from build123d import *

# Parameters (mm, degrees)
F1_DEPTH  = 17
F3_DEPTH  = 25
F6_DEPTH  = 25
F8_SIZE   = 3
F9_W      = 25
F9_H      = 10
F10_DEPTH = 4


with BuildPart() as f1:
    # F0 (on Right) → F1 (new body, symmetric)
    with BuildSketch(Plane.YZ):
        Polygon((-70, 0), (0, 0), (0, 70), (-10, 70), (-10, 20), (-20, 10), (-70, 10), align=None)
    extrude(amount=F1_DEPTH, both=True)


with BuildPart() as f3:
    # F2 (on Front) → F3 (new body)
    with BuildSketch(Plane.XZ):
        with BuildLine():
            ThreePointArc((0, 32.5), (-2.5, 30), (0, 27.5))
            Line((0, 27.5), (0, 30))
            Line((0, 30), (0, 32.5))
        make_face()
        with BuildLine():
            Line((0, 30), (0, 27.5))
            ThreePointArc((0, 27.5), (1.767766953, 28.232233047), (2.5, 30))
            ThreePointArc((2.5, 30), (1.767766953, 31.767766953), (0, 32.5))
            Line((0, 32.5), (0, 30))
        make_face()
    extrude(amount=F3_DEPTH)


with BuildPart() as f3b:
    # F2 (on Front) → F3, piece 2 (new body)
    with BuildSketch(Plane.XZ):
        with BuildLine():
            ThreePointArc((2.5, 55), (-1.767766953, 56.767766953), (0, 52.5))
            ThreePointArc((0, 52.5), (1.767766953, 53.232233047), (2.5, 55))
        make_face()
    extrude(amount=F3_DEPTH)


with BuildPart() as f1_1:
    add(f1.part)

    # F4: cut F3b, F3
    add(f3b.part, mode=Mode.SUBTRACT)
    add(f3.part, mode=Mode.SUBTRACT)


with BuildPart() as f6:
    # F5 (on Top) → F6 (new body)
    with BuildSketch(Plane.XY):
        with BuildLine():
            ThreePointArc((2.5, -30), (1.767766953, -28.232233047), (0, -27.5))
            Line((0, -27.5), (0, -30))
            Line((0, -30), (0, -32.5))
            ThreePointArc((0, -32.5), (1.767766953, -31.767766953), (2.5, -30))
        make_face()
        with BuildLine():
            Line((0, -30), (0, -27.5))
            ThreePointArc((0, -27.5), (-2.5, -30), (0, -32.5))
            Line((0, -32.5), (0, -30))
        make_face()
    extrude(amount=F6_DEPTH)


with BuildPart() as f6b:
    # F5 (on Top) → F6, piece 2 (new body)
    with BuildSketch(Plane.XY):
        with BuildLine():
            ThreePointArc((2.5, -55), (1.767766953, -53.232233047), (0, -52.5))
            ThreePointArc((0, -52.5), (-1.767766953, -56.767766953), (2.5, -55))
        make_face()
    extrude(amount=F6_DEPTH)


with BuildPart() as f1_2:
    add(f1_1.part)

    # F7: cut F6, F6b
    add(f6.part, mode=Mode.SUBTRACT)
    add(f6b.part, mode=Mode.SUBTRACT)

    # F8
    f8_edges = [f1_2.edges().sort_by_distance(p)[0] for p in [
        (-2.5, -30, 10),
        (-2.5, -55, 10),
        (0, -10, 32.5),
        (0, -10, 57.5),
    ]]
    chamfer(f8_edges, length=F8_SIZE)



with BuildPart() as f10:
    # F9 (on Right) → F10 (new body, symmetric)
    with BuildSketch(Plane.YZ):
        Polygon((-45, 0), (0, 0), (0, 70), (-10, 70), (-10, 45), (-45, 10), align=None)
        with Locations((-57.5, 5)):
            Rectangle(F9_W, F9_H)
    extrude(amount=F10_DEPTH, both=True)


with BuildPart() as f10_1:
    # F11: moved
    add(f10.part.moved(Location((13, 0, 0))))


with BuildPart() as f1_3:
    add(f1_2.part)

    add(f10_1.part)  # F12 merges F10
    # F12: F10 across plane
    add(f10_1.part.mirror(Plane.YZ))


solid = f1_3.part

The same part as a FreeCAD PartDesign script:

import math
import FreeCAD as App
import Part
import Sketcher
from FreeCAD import Vector
Q = App.Units.Quantity


def edges_at(feature, points):
    """Names of the edges that pass closest to the given points."""
    edges = feature.Shape.Edges
    near = lambda p: min(range(len(edges)), key=lambda i: edges[i].distToShape(Part.Vertex(*p))[0])
    return sorted({f"Edge{near(p) + 1}" for p in points})


def add_polygon(sketch, points):
    """Adds a closed chain of lines whose ends are joined by coincident constraints."""
    first, n = sketch.GeometryCount, len(points)
    for a, b in zip(points, points[1:] + points[:1]):
        sketch.addGeometry(Part.LineSegment(App.Vector(*a, 0), App.Vector(*b, 0)), False)
    for i in range(n):
        sketch.addConstraint(Sketcher.Constraint("Coincident", first + i, 2, first + (i + 1) % n, 1))

doc = App.newDocument("Part")
body = doc.addObject("PartDesign::Body", "Body")

# Sketch on YZ plane
sketch1 = doc.addObject("Sketcher::SketchObject", "Sketch")
body.addObject(sketch1)
sketch1.AttachmentSupport = (doc.YZ_Plane, [""])
sketch1.MapMode = "FlatFace"
add_polygon(sketch1, [(-70, 0), (0, 0), (0, 70), (-10, 70), (-10, 20), (-20, 10), (-70, 10)])  # lines 0-6
sketch1.addConstraint(Sketcher.Constraint("Horizontal", 0))
sketch1.addConstraint(Sketcher.Constraint("Vertical", 1))
sketch1.addConstraint(Sketcher.Constraint("Horizontal", 2))
sketch1.addConstraint(Sketcher.Constraint("Vertical", 3))
sketch1.addConstraint(Sketcher.Constraint("Horizontal", 5))
sketch1.addConstraint(Sketcher.Constraint("Vertical", 6))
sketch1.addConstraint(Sketcher.Constraint("Coincident", 0, 2, -1, 1))
sketch1.addConstraint(Sketcher.Constraint("Equal", 0, 1))
sketch1.addConstraint(Sketcher.Constraint("Equal", 5, 3))
sketch1.addConstraint(Sketcher.Constraint("Equal", 2, 6))
sketch1.addConstraint(Sketcher.Constraint("DistanceX", 0, 1, 0, 2, Q("70 mm")))
sketch1.addConstraint(Sketcher.Constraint("DistanceX", 2, 2, 2, 1, Q("10 mm")))
sketch1.addConstraint(Sketcher.Constraint("DistanceX", 5, 2, 5, 1, Q("50 mm")))
pad1 = doc.addObject("PartDesign::Pad", "Pad")
body.addObject(pad1)
pad1.Profile = sketch1
pad1.Length = 34
pad1.Midplane = True
body2 = doc.addObject("PartDesign::Body", "Body001")

# Sketch on XZ plane
sketch2 = doc.addObject("Sketcher::SketchObject", "Sketch001")
body2.addObject(sketch2)
sketch2.AttachmentSupport = (doc.getObject("XZ_Plane001"), [""])
sketch2.MapMode = "FlatFace"
sketch2.addGeometry(Part.ArcOfCircle(Part.Circle(Vector(0, 30, 0), Vector(0, 0, 1), 2.5), math.radians(90), math.radians(270)), False)
sketch2.addGeometry(Part.ArcOfCircle(Part.Circle(Vector(0, 30, 0), Vector(0, 0, 1), 2.5), math.radians(-90), math.radians(0)), False)
sketch2.addGeometry(Part.ArcOfCircle(Part.Circle(Vector(0, 30, 0), Vector(0, 0, 1), 2.5), math.radians(0), math.radians(90)), False)
sketch2.addConstraint(Sketcher.Constraint("Tangent", 0, 2, 1, 1))
sketch2.addConstraint(Sketcher.Constraint("Tangent", 1, 2, 2, 1))
sketch2.addConstraint(Sketcher.Constraint("Tangent", 2, 2, 0, 1))
sketch2.addConstraint(Sketcher.Constraint("PointOnObject", 0, 3, -2))
sketch2.addConstraint(Sketcher.Constraint("PointOnObject", 0, 2, -2))
sketch2.addConstraint(Sketcher.Constraint("PointOnObject", 2, 2, -2))
sketch2.addConstraint(Sketcher.Constraint("Horizontal", 2, 3, 1, 2))
sketch2.addConstraint(Sketcher.Constraint("Radius", 0, Q("2.5 mm")))
sketch2.addConstraint(Sketcher.Constraint("DistanceY", -1, 1, 0, 3, Q("30 mm")))
pad2 = doc.addObject("PartDesign::Pad", "Pad001")
body2.addObject(pad2)
pad2.Profile = sketch2
pad2.Length = 25
body3 = doc.addObject("PartDesign::Body", "Body002")

# Sketch on XZ plane
sketch3 = doc.addObject("Sketcher::SketchObject", "Sketch002")
body3.addObject(sketch3)
sketch3.AttachmentSupport = (doc.getObject("XZ_Plane002"), [""])
sketch3.MapMode = "FlatFace"
sketch3.addGeometry(Part.ArcOfCircle(Part.Circle(Vector(0, 55, 0), Vector(0, 0, 1), 2.5), math.radians(0), math.radians(270)), False)
sketch3.addGeometry(Part.ArcOfCircle(Part.Circle(Vector(0, 55, 0), Vector(0, 0, 1), 2.5), math.radians(-90), math.radians(0)), False)
sketch3.addConstraint(Sketcher.Constraint("Tangent", 0, 1, 1, 2))
sketch3.addConstraint(Sketcher.Constraint("Coincident", 1, 1, 0, 2))
sketch3.addConstraint(Sketcher.Constraint("PointOnObject", 0, 3, -2))
sketch3.addConstraint(Sketcher.Constraint("PointOnObject", 1, 1, -2))
sketch3.addConstraint(Sketcher.Constraint("Horizontal", 1, 3, 0, 1))
sketch3.addConstraint(Sketcher.Constraint("Radius", 0, Q("2.5 mm")))
sketch3.addConstraint(Sketcher.Constraint("DistanceY", -1, 1, 0, 3, Q("55 mm")))
pad3 = doc.addObject("PartDesign::Pad", "Pad002")
body3.addObject(pad3)
pad3.Profile = sketch3
pad3.Length = 25
doc.recompute()

boolean = doc.addObject("PartDesign::Boolean", "Boolean")
body.addObject(boolean)
boolean.Type = "Cut"
boolean.addObjects([body3])
doc.recompute()

boolean2 = doc.addObject("PartDesign::Boolean", "Boolean001")
body.addObject(boolean2)
boolean2.Type = "Cut"
boolean2.addObjects([body2])
body4 = doc.addObject("PartDesign::Body", "Body003")

# Sketch on XY plane
sketch4 = doc.addObject("Sketcher::SketchObject", "Sketch003")
body4.addObject(sketch4)
sketch4.AttachmentSupport = (doc.getObject("XY_Plane003"), [""])
sketch4.MapMode = "FlatFace"
sketch4.addGeometry(Part.ArcOfCircle(Part.Circle(Vector(0, -30, 0), Vector(0, 0, 1), 2.5), math.radians(0), math.radians(90)), False)
sketch4.addGeometry(Part.ArcOfCircle(Part.Circle(Vector(0, -30, 0), Vector(0, 0, 1), 2.5), math.radians(90), math.radians(270)), False)
sketch4.addGeometry(Part.ArcOfCircle(Part.Circle(Vector(0, -30, 0), Vector(0, 0, 1), 2.5), math.radians(-90), math.radians(0)), False)
sketch4.addConstraint(Sketcher.Constraint("Tangent", 0, 2, 1, 1))
sketch4.addConstraint(Sketcher.Constraint("Tangent", 1, 2, 2, 1))
sketch4.addConstraint(Sketcher.Constraint("Tangent", 2, 2, 0, 1))
sketch4.addConstraint(Sketcher.Constraint("PointOnObject", 0, 3, -2))
sketch4.addConstraint(Sketcher.Constraint("PointOnObject", 0, 2, -2))
sketch4.addConstraint(Sketcher.Constraint("PointOnObject", 1, 2, -2))
sketch4.addConstraint(Sketcher.Constraint("Horizontal", 1, 3, 2, 2))
sketch4.addConstraint(Sketcher.Constraint("Radius", 0, Q("2.5 mm")))
sketch4.addConstraint(Sketcher.Constraint("DistanceY", 0, 3, -1, 1, Q("30 mm")))
pad4 = doc.addObject("PartDesign::Pad", "Pad003")
body4.addObject(pad4)
pad4.Profile = sketch4
pad4.Length = 25
body5 = doc.addObject("PartDesign::Body", "Body004")

# Sketch on XY plane
sketch5 = doc.addObject("Sketcher::SketchObject", "Sketch004")
body5.addObject(sketch5)
sketch5.AttachmentSupport = (doc.getObject("XY_Plane004"), [""])
sketch5.MapMode = "FlatFace"
sketch5.addGeometry(Part.ArcOfCircle(Part.Circle(Vector(0, -55, 0), Vector(0, 0, 1), 2.5), math.radians(0), math.radians(90)), False)
sketch5.addGeometry(Part.ArcOfCircle(Part.Circle(Vector(0, -55, 0), Vector(0, 0, 1), 2.5), math.radians(90), math.radians(360)), False)
sketch5.addConstraint(Sketcher.Constraint("Tangent", 0, 1, 1, 2))
sketch5.addConstraint(Sketcher.Constraint("Coincident", 1, 1, 0, 2))
sketch5.addConstraint(Sketcher.Constraint("PointOnObject", 0, 3, -2))
sketch5.addConstraint(Sketcher.Constraint("PointOnObject", 1, 1, -2))
sketch5.addConstraint(Sketcher.Constraint("Horizontal", 1, 3, 0, 1))
sketch5.addConstraint(Sketcher.Constraint("Radius", 0, Q("2.5 mm")))
sketch5.addConstraint(Sketcher.Constraint("DistanceY", 0, 3, -1, 1, Q("55 mm")))
pad5 = doc.addObject("PartDesign::Pad", "Pad004")
body5.addObject(pad5)
pad5.Profile = sketch5
pad5.Length = 25
doc.recompute()

boolean3 = doc.addObject("PartDesign::Boolean", "Boolean002")
body.addObject(boolean3)
boolean3.Type = "Cut"
boolean3.addObjects([body4])
doc.recompute()

boolean4 = doc.addObject("PartDesign::Boolean", "Boolean003")
body.addObject(boolean4)
boolean4.Type = "Cut"
boolean4.addObjects([body5])
doc.recompute()

chamfer = doc.addObject("PartDesign::Chamfer", "Chamfer")
body.addObject(chamfer)
chamfer.Base = (boolean4, edges_at(boolean4, [
    (-2.5, -30, 10),
    (-1.768, -56.768, 10),
    (1.768, -10, 31.768),
    (-1.768, -10, 56.768),
]))
chamfer.Size = 3
body6 = doc.addObject("PartDesign::Body", "Body005")

# Sketch on YZ plane
sketch6 = doc.addObject("Sketcher::SketchObject", "Sketch005")
body6.addObject(sketch6)
sketch6.AttachmentSupport = (doc.getObject("YZ_Plane005"), [""])
sketch6.MapMode = "FlatFace"
add_polygon(sketch6, [(0, 0), (0, 70), (-10, 70), (-10, 45), (-45, 10), (-70, 10), (-70, 0)])  # lines 0-6
sketch6.addConstraint(Sketcher.Constraint("Vertical", 0))
sketch6.addConstraint(Sketcher.Constraint("Horizontal", 1))
sketch6.addConstraint(Sketcher.Constraint("Vertical", 2))
sketch6.addConstraint(Sketcher.Constraint("Horizontal", 4))
sketch6.addConstraint(Sketcher.Constraint("Vertical", 5))
sketch6.addConstraint(Sketcher.Constraint("Horizontal", 6))
sketch6.addConstraint(Sketcher.Constraint("Coincident", 6, 2, -1, 1))
sketch6.addConstraint(Sketcher.Constraint("Equal", 6, 0))
sketch6.addConstraint(Sketcher.Constraint("Equal", 4, 2))
sketch6.addConstraint(Sketcher.Constraint("Equal", 1, 5))
sketch6.addConstraint(Sketcher.Constraint("DistanceX", 1, 2, 1, 1, Q("10 mm")))
sketch6.addConstraint(Sketcher.Constraint("DistanceX", 4, 2, 4, 1, Q("25 mm")))
sketch6.addConstraint(Sketcher.Constraint("DistanceX", 6, 1, 6, 2, Q("70 mm")))
pad6 = doc.addObject("PartDesign::Pad", "Pad005")
body6.addObject(pad6)
pad6.Profile = sketch6
pad6.Length = 8
pad6.Midplane = True
body7 = doc.addObject("PartDesign::Body", "Body006")
doc.recompute()

body6.Placement = App.Placement(Vector(13, 0, 0), App.Rotation(Vector(0, 0, 1), 0))
boolean5 = doc.addObject("PartDesign::Boolean", "Boolean004")
body7.addObject(boolean5)
boolean5.Type = "Fuse"
boolean5.addObjects([body6])
doc.recompute()

body8 = doc.addObject("PartDesign::Body", "Body007")
body8.BaseFeature = body7
boolean6 = doc.addObject("PartDesign::Boolean", "Boolean005")
body.addObject(boolean6)
boolean6.Type = "Fuse"
boolean6.addObjects([body8])
doc.recompute()

mirroring = doc.addObject("Part::Mirroring", "Mirroring")
mirroring.Source = body7
mirroring.Base = Vector(0, 0, 0)
mirroring.Normal = Vector(1, 0, 0)
body9 = doc.addObject("PartDesign::Body", "Body008")
body9.BaseFeature = mirroring
boolean7 = doc.addObject("PartDesign::Boolean", "Boolean006")
body.addObject(boolean7)
boolean7.Type = "Fuse"
boolean7.addObjects([body9])
doc.recompute()
mirroring.Visibility = False

doc.recompute()
